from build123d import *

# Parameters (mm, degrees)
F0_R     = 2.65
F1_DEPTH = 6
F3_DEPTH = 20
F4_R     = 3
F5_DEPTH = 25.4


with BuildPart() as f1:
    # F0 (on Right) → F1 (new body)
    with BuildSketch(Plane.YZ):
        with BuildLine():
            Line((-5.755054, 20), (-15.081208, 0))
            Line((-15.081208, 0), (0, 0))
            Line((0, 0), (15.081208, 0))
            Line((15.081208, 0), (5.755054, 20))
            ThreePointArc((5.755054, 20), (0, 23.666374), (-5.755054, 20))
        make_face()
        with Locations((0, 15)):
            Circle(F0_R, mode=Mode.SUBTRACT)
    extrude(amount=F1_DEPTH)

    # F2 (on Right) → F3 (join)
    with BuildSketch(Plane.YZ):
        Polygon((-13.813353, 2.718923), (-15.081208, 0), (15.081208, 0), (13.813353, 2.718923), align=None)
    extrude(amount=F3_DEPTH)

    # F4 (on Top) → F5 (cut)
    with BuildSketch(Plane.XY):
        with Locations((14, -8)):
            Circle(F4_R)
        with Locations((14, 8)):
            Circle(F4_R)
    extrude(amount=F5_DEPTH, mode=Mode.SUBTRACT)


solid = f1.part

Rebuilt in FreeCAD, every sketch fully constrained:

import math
import FreeCAD as App
import Part
import Sketcher
Q = App.Units.Quantity

doc = App.newDocument("Part")
body = doc.addObject("PartDesign::Body", "Body")

sketch1 = body.newObject("Sketcher::SketchObject", "Sketch")
sketch1.AttachmentSupport = (doc.getObject("YZ_Plane"), [""])
sketch1.MapMode = "FlatFace"
sketch1.addGeometry([
    Part.LineSegment(App.Vector(-5.8, 20, 0), App.Vector(-15.1, 0, 0)),
    Part.LineSegment(App.Vector(-15.1, 0, 0), App.Vector(15.1, 0, 0)),
    Part.LineSegment(App.Vector(15.1, 0, 0), App.Vector(5.8, 20, 0)),
    Part.ArcOfCircle(Part.Circle(App.Vector(0, 17.3, 0), App.Vector(0, 0, 1), 6.3), math.radians(25), math.radians(155)),
    Part.Circle(App.Vector(0, 15, 0), App.Vector(0, 0, 1), 2.6),
], False)
sketch1.addConstraint([
    Sketcher.Constraint("Coincident", 0, 2, 1, 1),
    Sketcher.Constraint("Coincident", 1, 2, 2, 1),
    Sketcher.Constraint("Tangent", 2, 2, 3, 1),
    Sketcher.Constraint("Tangent", 3, 2, 0, 1),
    Sketcher.Constraint("Horizontal", 1),
    Sketcher.Constraint("Symmetric", 0, 2, 1, 2, -1, 1),
    Sketcher.Constraint("PointOnObject", 3, 3, -2),
    Sketcher.Constraint("PointOnObject", 4, 3, -2),
    Sketcher.Constraint("Diameter", 4, Q("5.3 mm")),
    Sketcher.Constraint("Angle", 0, Q("-115.000002 deg")),
    Sketcher.Constraint("Radius", 3, Q("6.349999 mm")),
    Sketcher.Constraint("DistanceY", -1, 1, 4, 3, Q("15 mm")),
    Sketcher.Constraint("DistanceY", -1, 1, 2, 2, Q("20 mm")),
])
pad1 = body.newObject("PartDesign::Pad", "Pad")
pad1.Profile = sketch1
pad1.Length = 6

sketch2 = body.newObject("Sketcher::SketchObject", "Sketch001")
sketch2.AttachmentSupport = (doc.getObject("YZ_Plane"), [""])
sketch2.MapMode = "FlatFace"
sketch2.addGeometry([
    Part.LineSegment(App.Vector(-13.8, 2.7, 0), App.Vector(-15.1, 0, 0)),
    Part.LineSegment(App.Vector(-15.1, 0, 0), App.Vector(15.1, 0, 0)),
    Part.LineSegment(App.Vector(15.1, 0, 0), App.Vector(13.8, 2.7, 0)),
    Part.LineSegment(App.Vector(13.8, 2.7, 0), App.Vector(-13.8, 2.7, 0)),
], False)
sketch2.addConstraint([
    Sketcher.Constraint("Coincident", 0, 2, 1, 1),
    Sketcher.Constraint("Coincident", 1, 2, 2, 1),
    Sketcher.Constraint("Coincident", 2, 2, 3, 1),
    Sketcher.Constraint("Coincident", 3, 2, 0, 1),
    Sketcher.Constraint("Horizontal", 1),
    Sketcher.Constraint("Horizontal", 3),
    Sketcher.Constraint("Symmetric", 0, 2, 1, 2, -1, 1),
    Sketcher.Constraint("Equal", 0, 2),
    Sketcher.Constraint("Angle", 0, Q("-115.000007 deg")),
    Sketcher.Constraint("Distance", 0, Q("3 mm")),
    Sketcher.Constraint("DistanceX", 1, 1, 1, 2, Q("30.162416 mm")),
])
pad2 = body.newObject("PartDesign::Pad", "Pad001")
pad2.Profile = sketch2
pad2.Length = 20

sketch3 = body.newObject("Sketcher::SketchObject", "Sketch002")
sketch3.AttachmentSupport = (doc.getObject("XY_Plane"), [""])
sketch3.MapMode = "FlatFace"
sketch3.addGeometry([
    Part.Circle(App.Vector(14, -8, 0), App.Vector(0, 0, 1), 3),
    Part.Circle(App.Vector(14, 8, 0), App.Vector(0, 0, 1), 3),
], False)
sketch3.addConstraint([
    Sketcher.Constraint("Equal", 0, 1),
    Sketcher.Constraint("Symmetric", 0, 3, 1, 3, -1),
    Sketcher.Constraint("Diameter", 0, Q("6 mm")),
    Sketcher.Constraint("DistanceX", -1, 1, 0, 3, Q("14 mm")),
    Sketcher.Constraint("DistanceY", 0, 3, -1, 1, Q("8 mm")),
])
pocket1 = body.newObject("PartDesign::Pocket", "Pocket")
pocket1.Profile = sketch3
pocket1.Length = 25.4
pocket1.Reversed = True

doc.recompute()
